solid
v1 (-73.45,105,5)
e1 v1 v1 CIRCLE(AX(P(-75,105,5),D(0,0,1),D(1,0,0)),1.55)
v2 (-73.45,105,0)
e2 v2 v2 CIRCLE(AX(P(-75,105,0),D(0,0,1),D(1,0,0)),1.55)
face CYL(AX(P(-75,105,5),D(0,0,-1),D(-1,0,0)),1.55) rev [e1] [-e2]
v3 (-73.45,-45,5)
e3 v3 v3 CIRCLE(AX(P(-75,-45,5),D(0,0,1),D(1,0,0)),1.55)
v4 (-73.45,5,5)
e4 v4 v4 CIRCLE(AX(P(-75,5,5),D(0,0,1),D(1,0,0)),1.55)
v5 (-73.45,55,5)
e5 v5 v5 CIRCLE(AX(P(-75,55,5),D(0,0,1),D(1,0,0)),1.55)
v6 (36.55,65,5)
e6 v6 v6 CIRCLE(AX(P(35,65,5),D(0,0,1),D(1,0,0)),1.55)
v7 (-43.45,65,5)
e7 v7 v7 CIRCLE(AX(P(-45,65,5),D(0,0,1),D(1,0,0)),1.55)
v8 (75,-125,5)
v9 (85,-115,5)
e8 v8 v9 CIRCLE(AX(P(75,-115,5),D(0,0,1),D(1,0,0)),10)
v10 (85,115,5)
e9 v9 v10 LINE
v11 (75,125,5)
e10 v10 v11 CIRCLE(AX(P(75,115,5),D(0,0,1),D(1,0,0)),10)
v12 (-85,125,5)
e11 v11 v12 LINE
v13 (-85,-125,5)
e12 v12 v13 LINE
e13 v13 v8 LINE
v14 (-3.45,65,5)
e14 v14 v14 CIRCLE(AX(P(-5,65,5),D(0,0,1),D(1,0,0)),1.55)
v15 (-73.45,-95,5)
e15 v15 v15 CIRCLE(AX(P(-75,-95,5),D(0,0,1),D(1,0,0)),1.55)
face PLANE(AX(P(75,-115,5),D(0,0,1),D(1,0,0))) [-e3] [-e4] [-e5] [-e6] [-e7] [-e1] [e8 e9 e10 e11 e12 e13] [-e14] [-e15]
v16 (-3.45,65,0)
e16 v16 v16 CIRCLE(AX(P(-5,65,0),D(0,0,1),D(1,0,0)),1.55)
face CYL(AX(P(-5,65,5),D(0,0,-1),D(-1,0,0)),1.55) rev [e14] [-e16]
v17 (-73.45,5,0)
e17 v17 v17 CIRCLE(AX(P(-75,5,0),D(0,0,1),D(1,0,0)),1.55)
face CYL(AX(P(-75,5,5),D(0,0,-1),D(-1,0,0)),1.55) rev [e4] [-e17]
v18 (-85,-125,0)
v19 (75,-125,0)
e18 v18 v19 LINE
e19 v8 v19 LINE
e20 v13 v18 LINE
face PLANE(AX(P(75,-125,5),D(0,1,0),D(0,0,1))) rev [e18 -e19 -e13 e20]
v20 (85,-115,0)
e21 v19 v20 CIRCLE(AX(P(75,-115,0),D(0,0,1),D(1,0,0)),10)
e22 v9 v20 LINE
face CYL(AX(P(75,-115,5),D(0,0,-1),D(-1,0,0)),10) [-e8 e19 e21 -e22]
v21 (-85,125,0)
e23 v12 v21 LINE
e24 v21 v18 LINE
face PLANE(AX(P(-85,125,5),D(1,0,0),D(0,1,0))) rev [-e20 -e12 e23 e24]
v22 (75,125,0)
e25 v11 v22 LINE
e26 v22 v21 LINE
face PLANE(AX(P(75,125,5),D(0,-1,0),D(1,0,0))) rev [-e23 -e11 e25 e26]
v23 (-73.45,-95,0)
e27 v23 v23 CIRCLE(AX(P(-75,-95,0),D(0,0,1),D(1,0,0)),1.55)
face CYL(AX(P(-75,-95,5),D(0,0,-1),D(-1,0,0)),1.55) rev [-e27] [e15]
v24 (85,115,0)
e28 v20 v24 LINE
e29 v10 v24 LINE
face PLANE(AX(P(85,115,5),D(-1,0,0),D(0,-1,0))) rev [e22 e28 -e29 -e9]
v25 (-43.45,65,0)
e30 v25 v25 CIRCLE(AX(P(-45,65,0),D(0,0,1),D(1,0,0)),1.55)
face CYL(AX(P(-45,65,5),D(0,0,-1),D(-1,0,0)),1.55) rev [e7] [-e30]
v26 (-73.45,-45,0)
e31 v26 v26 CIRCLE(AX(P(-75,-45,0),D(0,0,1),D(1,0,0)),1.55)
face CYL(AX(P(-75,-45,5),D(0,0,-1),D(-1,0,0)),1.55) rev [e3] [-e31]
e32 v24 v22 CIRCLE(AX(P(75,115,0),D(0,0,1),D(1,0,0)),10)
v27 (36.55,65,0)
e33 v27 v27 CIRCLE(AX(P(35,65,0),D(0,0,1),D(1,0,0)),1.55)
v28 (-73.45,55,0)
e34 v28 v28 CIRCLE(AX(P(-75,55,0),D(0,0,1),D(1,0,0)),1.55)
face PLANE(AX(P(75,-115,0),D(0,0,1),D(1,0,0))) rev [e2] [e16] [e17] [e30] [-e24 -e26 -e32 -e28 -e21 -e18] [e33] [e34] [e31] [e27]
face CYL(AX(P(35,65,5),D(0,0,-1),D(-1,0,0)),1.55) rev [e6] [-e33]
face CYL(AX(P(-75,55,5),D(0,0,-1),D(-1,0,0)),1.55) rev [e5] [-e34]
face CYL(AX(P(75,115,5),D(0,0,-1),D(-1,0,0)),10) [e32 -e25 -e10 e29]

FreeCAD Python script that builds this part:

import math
import FreeCAD as App
import Part
import Sketcher
from FreeCAD import Vector

doc = App.newDocument("Part")
body = doc.addObject("PartDesign::Body", "Body")

# Sketch on XY plane
sketch1 = body.newObject("Sketcher::SketchObject", "Sketch")
sketch1.AttachmentSupport = (doc.getObject("XY_Plane"), [""])
sketch1.MapMode = "FlatFace"
sketch1.addGeometry(Part.LineSegment(Vector(75, 125, 0), Vector(-85, 125, 0)), False)
sketch1.addGeometry(Part.LineSegment(Vector(-85, 125, 0), Vector(-85, -125, 0)), False)
sketch1.addGeometry(Part.LineSegment(Vector(-85, -125, 0), Vector(75, -125, 0)), False)
sketch1.addGeometry(Part.ArcOfCircle(Part.Circle(Vector(75, -115, 0), Vector(0, 0, 1), 10), math.radians(-90), math.radians(0)), False)
sketch1.addGeometry(Part.LineSegment(Vector(85, -115, 0), Vector(85, 115, 0)), False)
sketch1.addGeometry(Part.ArcOfCircle(Part.Circle(Vector(75, 115, 0), Vector(0, 0, 1), 10), math.radians(0), math.radians(90)), False)
sketch1.addGeometry(Part.Circle(Vector(-75, -95, 0), Vector(0, 0, 1), 1.6), False)
sketch1.addGeometry(Part.Circle(Vector(-75, -45, 0), Vector(0, 0, 1), 1.6), False)
sketch1.addGeometry(Part.Circle(Vector(-75, 5, 0), Vector(0, 0, 1), 1.6), False)
sketch1.addGeometry(Part.Circle(Vector(-75, 55, 0), Vector(0, 0, 1), 1.6), False)
sketch1.addGeometry(Part.Circle(Vector(-75, 105, 0), Vector(0, 0, 1), 1.6), False)
sketch1.addGeometry(Part.Circle(Vector(-45, 65, 0), Vector(0, 0, 1), 1.6), False)
sketch1.addGeometry(Part.Circle(Vector(-5, 65, 0), Vector(0, 0, 1), 1.6), False)
sketch1.addGeometry(Part.Circle(Vector(35, 65, 0), Vector(0, 0, 1), 1.6), False)
sketch1.addConstraint(Sketcher.Constraint("Coincident", 0, 2, 1, 1))
sketch1.addConstraint(Sketcher.Constraint("Coincident", 1, 2, 2, 1))
sketch1.addConstraint(Sketcher.Constraint("Tangent", 2, 2, 3, 1))
sketch1.addConstraint(Sketcher.Constraint("Tangent", 3, 2, 4, 1))
sketch1.addConstraint(Sketcher.Constraint("Tangent", 4, 2, 5, 1))
sketch1.addConstraint(Sketcher.Constraint("Tangent", 5, 2, 0, 1))
sketch1.addConstraint(Sketcher.Constraint("Horizontal", 0))
sketch1.addConstraint(Sketcher.Constraint("Vertical", 1))
sketch1.addConstraint(Sketcher.Constraint("Horizontal", 2))
sketch1.addConstraint(Sketcher.Constraint("Vertical", 4))
sketch1.addConstraint(Sketcher.Constraint("Equal", 3, 5))
sketch1.addConstraint(Sketcher.Constraint("Equal", 6, 7))
sketch1.addConstraint(Sketcher.Constraint("Equal", 7, 8))
sketch1.addConstraint(Sketcher.Constraint("Equal", 8, 9))
sketch1.addConstraint(Sketcher.Constraint("Equal", 9, 10))
sketch1.addConstraint(Sketcher.Constraint("Equal", 10, 11))
sketch1.addConstraint(Sketcher.Constraint("Equal", 11, 12))
sketch1.addConstraint(Sketcher.Constraint("Equal", 12, 13))
sketch1.addConstraint(Sketcher.Constraint("Horizontal", 11, 3, 12, 3))
sketch1.addConstraint(Sketcher.Constraint("Horizontal", 12, 3, 13, 3))
sketch1.addConstraint(Sketcher.Constraint("Vertical", 6, 3, 7, 3))
sketch1.addConstraint(Sketcher.Constraint("Vertical", 7, 3, 8, 3))
sketch1.addConstraint(Sketcher.Constraint("Vertical", 8, 3, 9, 3))
sketch1.addConstraint(Sketcher.Constraint("Vertical", 9, 3, 10, 3))
sketch1.addConstraint(Sketcher.Constraint("Radius", 3, 10.0))
sketch1.addConstraint(Sketcher.Constraint("Diameter", 6, 3.1))
sketch1.addConstraint(Sketcher.Constraint("DistanceX", 0, 2, 0, 1, 160.0))
sketch1.addConstraint(Sketcher.Constraint("DistanceY", 1, 2, 1, 1, 250.0))
sketch1.addConstraint(Sketcher.Constraint("DistanceX", -1, 1, 3, 3, 75.0))
sketch1.addConstraint(Sketcher.Constraint("DistanceY", 3, 3, -1, 1, 115.0))
sketch1.addConstraint(Sketcher.Constraint("DistanceX", 6, 3, -1, 1, 75.0))
sketch1.addConstraint(Sketcher.Constraint("DistanceY", 6, 3, -1, 1, 95.0))
sketch1.addConstraint(Sketcher.Constraint("DistanceY", 7, 3, -1, 1, 45.0))
sketch1.addConstraint(Sketcher.Constraint("DistanceY", -1, 1, 8, 3, 5.0))
sketch1.addConstraint(Sketcher.Constraint("DistanceY", -1, 1, 9, 3, 55.0))
sketch1.addConstraint(Sketcher.Constraint("DistanceY", -1, 1, 10, 3, 105.0))
sketch1.addConstraint(Sketcher.Constraint("DistanceX", 11, 3, -1, 1, 45.0))
sketch1.addConstraint(Sketcher.Constraint("DistanceY", -1, 1, 11, 3, 65.0))
sketch1.addConstraint(Sketcher.Constraint("DistanceX", 12, 3, -1, 1, 5.0))
sketch1.addConstraint(Sketcher.Constraint("DistanceX", -1, 1, 13, 3, 35.0))
pad1 = body.newObject("PartDesign::Pad", "Pad")
pad1.Profile = sketch1
pad1.Length = 5

doc.recompute()
